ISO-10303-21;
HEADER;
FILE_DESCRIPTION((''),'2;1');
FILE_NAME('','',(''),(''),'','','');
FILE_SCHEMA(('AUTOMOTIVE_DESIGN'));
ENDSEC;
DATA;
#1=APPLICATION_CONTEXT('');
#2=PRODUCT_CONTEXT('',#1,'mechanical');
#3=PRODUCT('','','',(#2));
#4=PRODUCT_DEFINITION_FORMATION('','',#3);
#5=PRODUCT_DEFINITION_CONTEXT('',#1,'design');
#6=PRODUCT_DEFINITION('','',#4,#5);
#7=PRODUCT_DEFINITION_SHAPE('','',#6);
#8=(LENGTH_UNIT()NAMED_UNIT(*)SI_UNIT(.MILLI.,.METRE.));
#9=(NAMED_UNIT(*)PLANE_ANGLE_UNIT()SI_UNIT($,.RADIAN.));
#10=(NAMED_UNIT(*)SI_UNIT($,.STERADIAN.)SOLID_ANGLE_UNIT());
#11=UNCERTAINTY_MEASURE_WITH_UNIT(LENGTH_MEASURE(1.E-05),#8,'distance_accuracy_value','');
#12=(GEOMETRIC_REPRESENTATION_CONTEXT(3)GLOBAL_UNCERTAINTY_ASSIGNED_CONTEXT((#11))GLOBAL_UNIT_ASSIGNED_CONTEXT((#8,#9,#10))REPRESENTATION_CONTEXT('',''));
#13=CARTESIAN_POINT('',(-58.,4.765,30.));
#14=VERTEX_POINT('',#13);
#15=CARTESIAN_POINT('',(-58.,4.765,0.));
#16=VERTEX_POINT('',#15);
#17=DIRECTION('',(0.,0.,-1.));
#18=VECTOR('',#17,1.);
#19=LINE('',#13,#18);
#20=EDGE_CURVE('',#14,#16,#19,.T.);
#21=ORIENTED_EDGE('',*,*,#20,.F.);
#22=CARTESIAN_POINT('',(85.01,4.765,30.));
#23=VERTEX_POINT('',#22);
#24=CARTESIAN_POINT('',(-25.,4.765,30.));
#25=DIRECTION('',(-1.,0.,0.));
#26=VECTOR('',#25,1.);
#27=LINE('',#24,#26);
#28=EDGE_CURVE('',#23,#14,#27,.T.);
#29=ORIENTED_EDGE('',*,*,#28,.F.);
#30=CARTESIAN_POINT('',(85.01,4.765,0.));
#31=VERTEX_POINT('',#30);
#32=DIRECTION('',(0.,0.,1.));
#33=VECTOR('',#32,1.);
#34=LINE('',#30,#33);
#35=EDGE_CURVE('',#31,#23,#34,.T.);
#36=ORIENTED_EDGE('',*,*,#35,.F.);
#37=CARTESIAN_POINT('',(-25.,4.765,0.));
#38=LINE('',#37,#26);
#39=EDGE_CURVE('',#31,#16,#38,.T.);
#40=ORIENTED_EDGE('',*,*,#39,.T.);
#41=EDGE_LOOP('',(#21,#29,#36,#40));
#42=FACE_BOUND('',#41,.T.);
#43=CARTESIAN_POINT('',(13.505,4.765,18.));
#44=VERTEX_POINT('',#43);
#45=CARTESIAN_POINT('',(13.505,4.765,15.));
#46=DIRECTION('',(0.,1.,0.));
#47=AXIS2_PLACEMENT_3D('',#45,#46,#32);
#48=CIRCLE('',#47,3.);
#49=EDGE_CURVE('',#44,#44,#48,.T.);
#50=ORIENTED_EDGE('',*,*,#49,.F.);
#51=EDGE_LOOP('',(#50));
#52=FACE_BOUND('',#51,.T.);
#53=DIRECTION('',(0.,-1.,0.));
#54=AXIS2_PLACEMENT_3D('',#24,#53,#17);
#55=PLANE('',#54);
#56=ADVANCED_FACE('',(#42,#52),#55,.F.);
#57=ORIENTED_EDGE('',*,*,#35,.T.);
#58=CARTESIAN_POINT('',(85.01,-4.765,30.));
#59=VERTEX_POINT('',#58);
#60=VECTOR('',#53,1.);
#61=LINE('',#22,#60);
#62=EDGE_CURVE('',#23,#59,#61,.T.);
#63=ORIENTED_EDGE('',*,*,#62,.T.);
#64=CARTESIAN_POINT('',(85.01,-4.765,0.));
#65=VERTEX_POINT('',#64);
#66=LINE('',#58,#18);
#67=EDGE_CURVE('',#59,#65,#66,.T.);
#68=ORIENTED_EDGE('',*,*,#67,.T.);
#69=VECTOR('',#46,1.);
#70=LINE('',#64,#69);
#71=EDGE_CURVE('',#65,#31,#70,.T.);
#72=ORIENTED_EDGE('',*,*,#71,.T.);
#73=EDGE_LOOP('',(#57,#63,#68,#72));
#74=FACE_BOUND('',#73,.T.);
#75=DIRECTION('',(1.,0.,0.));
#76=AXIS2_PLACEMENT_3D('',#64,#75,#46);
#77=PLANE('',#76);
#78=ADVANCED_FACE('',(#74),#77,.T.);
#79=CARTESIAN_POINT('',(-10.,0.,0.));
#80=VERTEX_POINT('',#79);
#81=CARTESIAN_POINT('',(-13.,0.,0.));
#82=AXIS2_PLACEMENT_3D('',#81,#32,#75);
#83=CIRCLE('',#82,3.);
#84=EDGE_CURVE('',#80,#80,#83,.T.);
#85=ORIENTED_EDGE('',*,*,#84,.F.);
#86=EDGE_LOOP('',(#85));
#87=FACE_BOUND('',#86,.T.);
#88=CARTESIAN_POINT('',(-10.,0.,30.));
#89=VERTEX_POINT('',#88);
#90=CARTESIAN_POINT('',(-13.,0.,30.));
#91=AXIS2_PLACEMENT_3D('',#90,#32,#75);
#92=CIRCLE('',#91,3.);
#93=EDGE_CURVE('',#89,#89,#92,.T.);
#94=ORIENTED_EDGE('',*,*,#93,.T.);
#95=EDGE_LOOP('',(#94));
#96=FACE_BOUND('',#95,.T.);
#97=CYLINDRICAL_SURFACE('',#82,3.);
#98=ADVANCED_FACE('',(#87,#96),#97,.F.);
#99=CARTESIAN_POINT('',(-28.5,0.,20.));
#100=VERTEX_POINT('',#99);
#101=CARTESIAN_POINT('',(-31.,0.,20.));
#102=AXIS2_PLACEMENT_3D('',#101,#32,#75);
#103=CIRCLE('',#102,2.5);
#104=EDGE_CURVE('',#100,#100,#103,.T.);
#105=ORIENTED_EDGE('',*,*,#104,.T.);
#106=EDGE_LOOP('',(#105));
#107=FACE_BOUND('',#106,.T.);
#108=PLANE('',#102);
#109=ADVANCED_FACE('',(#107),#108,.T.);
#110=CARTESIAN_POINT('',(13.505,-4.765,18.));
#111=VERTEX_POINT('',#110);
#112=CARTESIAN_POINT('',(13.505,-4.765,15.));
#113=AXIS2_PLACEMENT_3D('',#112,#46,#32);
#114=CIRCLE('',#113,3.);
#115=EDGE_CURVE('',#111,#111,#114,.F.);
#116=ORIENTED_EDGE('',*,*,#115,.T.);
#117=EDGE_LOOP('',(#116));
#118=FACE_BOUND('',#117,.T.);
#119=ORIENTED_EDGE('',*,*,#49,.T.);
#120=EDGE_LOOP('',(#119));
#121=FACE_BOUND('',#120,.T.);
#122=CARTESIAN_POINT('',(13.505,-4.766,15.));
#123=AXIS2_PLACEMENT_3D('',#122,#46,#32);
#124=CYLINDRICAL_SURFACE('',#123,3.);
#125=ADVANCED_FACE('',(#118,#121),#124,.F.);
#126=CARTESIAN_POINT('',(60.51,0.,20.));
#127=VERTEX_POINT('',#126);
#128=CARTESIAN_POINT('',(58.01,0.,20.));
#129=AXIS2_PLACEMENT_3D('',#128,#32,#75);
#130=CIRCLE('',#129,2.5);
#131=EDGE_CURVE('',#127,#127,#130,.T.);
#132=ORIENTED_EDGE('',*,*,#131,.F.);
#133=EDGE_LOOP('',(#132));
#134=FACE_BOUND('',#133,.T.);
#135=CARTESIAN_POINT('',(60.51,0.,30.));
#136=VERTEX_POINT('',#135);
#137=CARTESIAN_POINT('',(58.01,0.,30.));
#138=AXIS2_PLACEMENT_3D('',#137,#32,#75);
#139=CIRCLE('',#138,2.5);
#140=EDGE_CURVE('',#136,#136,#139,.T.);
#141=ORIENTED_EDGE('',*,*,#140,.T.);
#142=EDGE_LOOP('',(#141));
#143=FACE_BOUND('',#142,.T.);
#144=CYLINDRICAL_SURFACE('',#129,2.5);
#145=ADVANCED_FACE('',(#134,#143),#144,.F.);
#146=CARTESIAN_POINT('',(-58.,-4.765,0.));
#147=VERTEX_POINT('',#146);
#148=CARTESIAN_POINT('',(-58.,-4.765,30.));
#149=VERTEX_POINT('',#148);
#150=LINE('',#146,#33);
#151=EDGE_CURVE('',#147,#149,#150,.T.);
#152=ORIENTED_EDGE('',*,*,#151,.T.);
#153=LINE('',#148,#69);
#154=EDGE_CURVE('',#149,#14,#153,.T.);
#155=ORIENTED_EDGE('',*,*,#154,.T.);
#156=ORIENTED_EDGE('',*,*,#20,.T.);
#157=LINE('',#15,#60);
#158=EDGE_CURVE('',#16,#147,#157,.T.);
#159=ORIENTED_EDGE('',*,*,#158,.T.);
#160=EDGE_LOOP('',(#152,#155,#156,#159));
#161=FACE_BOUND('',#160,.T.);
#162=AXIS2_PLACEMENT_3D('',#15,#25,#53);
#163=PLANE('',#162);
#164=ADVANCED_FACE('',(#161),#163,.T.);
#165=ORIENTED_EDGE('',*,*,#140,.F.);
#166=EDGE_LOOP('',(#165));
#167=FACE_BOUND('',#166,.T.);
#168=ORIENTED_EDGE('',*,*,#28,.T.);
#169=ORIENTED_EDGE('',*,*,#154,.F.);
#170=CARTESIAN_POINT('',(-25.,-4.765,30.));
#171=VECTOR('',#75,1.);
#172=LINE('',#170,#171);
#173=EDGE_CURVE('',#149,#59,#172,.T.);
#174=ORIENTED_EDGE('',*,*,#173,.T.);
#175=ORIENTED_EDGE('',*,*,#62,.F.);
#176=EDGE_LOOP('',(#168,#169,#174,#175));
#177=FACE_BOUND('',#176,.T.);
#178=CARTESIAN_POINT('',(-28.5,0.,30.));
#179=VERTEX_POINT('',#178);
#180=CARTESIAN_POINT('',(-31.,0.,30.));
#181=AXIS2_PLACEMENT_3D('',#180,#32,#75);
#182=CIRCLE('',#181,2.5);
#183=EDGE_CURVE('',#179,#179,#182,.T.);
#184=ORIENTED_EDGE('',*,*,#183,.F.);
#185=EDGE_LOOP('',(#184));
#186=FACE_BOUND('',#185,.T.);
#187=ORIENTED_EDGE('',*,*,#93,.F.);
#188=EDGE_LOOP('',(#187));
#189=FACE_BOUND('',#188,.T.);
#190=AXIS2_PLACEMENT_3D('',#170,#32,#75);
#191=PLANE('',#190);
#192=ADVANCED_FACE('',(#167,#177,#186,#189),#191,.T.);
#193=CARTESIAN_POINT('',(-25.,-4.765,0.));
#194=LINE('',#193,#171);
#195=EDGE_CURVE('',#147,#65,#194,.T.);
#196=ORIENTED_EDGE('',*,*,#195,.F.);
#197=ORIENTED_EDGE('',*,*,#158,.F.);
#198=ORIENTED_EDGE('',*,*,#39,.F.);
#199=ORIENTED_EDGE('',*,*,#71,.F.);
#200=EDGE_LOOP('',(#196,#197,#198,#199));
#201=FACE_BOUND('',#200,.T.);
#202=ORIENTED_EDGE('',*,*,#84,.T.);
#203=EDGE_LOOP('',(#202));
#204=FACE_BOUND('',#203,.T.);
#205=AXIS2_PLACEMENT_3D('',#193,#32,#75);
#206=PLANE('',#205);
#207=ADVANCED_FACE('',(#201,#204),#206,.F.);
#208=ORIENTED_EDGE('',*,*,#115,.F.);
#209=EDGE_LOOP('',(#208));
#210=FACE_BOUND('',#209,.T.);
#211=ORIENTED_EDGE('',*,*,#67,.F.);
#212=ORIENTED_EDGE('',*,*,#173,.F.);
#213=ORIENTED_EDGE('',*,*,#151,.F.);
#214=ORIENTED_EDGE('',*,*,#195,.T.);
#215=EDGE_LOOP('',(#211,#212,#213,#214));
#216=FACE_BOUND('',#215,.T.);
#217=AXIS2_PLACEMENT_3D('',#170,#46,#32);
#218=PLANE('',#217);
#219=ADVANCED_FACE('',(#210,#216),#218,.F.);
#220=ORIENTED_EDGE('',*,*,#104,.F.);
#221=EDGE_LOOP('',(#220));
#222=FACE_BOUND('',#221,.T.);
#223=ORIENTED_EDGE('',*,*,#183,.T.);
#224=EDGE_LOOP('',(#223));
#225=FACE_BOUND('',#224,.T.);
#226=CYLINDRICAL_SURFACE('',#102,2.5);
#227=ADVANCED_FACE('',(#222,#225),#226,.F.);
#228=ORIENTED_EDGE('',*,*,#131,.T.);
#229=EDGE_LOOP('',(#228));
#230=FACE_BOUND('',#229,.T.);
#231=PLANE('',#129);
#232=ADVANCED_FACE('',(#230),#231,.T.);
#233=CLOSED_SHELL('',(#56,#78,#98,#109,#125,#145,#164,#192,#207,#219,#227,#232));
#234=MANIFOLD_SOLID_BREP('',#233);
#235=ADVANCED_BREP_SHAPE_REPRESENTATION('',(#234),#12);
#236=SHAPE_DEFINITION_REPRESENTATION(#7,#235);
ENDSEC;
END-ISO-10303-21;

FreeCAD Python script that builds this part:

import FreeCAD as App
import Part
import Sketcher
Q = App.Units.Quantity


def add_polygon(sketch, points):
    """Adds a closed chain of lines whose ends are joined by coincident constraints."""
    first, n = sketch.GeometryCount, len(points)
    for a, b in zip(points, points[1:] + points[:1]):
        sketch.addGeometry(Part.LineSegment(App.Vector(*a, 0), App.Vector(*b, 0)), False)
    for i in range(n):
        sketch.addConstraint(Sketcher.Constraint("Coincident", first + i, 2, first + (i + 1) % n, 1))

doc = App.newDocument("Part")
body = doc.addObject("PartDesign::Body", "Body")

# Sketch on XY plane
sketch1 = body.newObject("Sketcher::SketchObject", "Sketch")
sketch1.AttachmentSupport = (doc.getObject("XY_Plane"), [""])
sketch1.MapMode = "FlatFace"
add_polygon(sketch1, [(-25, 5), (-25, -5), (25, -5), (25, 5)])  # lines 0-3
sketch1.addConstraint(Sketcher.Constraint("Vertical", 0))
sketch1.addConstraint(Sketcher.Constraint("Horizontal", 1))
sketch1.addConstraint(Sketcher.Constraint("Vertical", 2))
sketch1.addConstraint(Sketcher.Constraint("Horizontal", 3))
sketch1.addConstraint(Sketcher.Constraint("Symmetric", 0, 2, 2, 2, -1, 1))
sketch1.addConstraint(Sketcher.Constraint("DistanceX", 1, 1, 1, 2, Q("50 mm")))
sketch1.addConstraint(Sketcher.Constraint("DistanceY", 0, 2, 0, 1, Q("9.53 mm")))
pad1 = body.newObject("PartDesign::Pad", "Pad")
pad1.Profile = sketch1
pad1.Length = 30

# Sketch on XY plane
sketch2 = body.newObject("Sketcher::SketchObject", "Sketch001")
sketch2.AttachmentSupport = (doc.getObject("XY_Plane"), [""])
sketch2.MapMode = "FlatFace"
sketch2.AttachmentOffset = App.Placement(App.Vector(0, 0, 30), App.Rotation())
sketch2.addGeometry(Part.Circle(App.Vector(-13, 0, 0), App.Vector(0, 0, 1), 3), False)
sketch2.addConstraint(Sketcher.Constraint("PointOnObject", 0, 3, -1))
sketch2.addConstraint(Sketcher.Constraint("Diameter", 0, Q("6 mm")))
sketch2.addConstraint(Sketcher.Constraint("DistanceX", 0, 3, -1, 1, Q("13 mm")))
pocket1 = body.newObject("PartDesign::Pocket", "Pocket")
pocket1.Profile = sketch2
pocket1.Type = "ThroughAll"

# Sketch on YZ plane
sketch3 = body.newObject("Sketcher::SketchObject", "Sketch002")
sketch3.AttachmentSupport = (doc.getObject("YZ_Plane"), [""])
sketch3.MapMode = "FlatFace"
sketch3.AttachmentOffset = App.Placement(App.Vector(0, 0, 25), App.Rotation())
add_polygon(sketch3, [(5, 30), (-5, 30), (-5, 0), (5, 0)])  # lines 0-3
sketch3.addConstraint(Sketcher.Constraint("Horizontal", 0))
sketch3.addConstraint(Sketcher.Constraint("Vertical", 1))
sketch3.addConstraint(Sketcher.Constraint("Horizontal", 2))
sketch3.addConstraint(Sketcher.Constraint("Vertical", 3))
sketch3.addConstraint(Sketcher.Constraint("Symmetric", 1, 2, 2, 2, -1, 1))
sketch3.addConstraint(Sketcher.Constraint("DistanceY", 1, 2, 1, 1, Q("30 mm")))
sketch3.addConstraint(Sketcher.Constraint("DistanceX", 0, 2, 0, 1, Q("9.53 mm")))
pad2 = body.newObject("PartDesign::Pad", "Pad001")
pad2.Profile = sketch3
pad2.Length = 60.01

# Sketch on YZ plane
sketch4 = body.newObject("Sketcher::SketchObject", "Sketch003")
sketch4.AttachmentSupport = (doc.getObject("YZ_Plane"), [""])
sketch4.MapMode = "FlatFace"
sketch4.AttachmentOffset = App.Placement(App.Vector(0, 0, -25), App.Rotation())
add_polygon(sketch4, [(5, 0), (-5, 0), (-5, 30), (5, 30)])  # lines 0-3
sketch4.addConstraint(Sketcher.Constraint("Horizontal", 0))
sketch4.addConstraint(Sketcher.Constraint("Vertical", 1))
sketch4.addConstraint(Sketcher.Constraint("Horizontal", 2))
sketch4.addConstraint(Sketcher.Constraint("Vertical", 3))
sketch4.addConstraint(Sketcher.Constraint("Symmetric", 0, 2, 3, 2, -1, 1))
sketch4.addConstraint(Sketcher.Constraint("DistanceY", 1, 1, 1, 2, Q("30 mm")))
sketch4.addConstraint(Sketcher.Constraint("DistanceX", 0, 2, 0, 1, Q("9.53 mm")))
pad3 = body.newObject("PartDesign::Pad", "Pad002")
pad3.Profile = sketch4
pad3.Length = 33
pad3.Reversed = True

# Sketch on XY plane
sketch5 = body.newObject("Sketcher::SketchObject", "Sketch004")
sketch5.AttachmentSupport = (doc.getObject("XY_Plane"), [""])
sketch5.MapMode = "FlatFace"
sketch5.AttachmentOffset = App.Placement(App.Vector(0, 0, 30), App.Rotation())
sketch5.addGeometry(Part.Circle(App.Vector(-31, 0, 0), App.Vector(0, 0, 1), 2.5), False)
sketch5.addGeometry(Part.Circle(App.Vector(58, 0, 0), App.Vector(0, 0, 1), 2.5), False)
sketch5.addConstraint(Sketcher.Constraint("Equal", 0, 1))
sketch5.addConstraint(Sketcher.Constraint("PointOnObject", 0, 3, -1))
sketch5.addConstraint(Sketcher.Constraint("PointOnObject", 1, 3, -1))
sketch5.addConstraint(Sketcher.Constraint("Diameter", 0, Q("5 mm")))
sketch5.addConstraint(Sketcher.Constraint("DistanceX", 0, 3, -1, 1, Q("31 mm")))
sketch5.addConstraint(Sketcher.Constraint("DistanceX", -1, 1, 1, 3, Q("58.01 mm")))
pocket2 = body.newObject("PartDesign::Pocket", "Pocket001")
pocket2.Profile = sketch5
pocket2.Length = 10

# Sketch on XZ plane
sketch6 = body.newObject("Sketcher::SketchObject", "Sketch005")
sketch6.AttachmentSupport = (doc.getObject("XZ_Plane"), [""])
sketch6.MapMode = "FlatFace"
sketch6.AttachmentOffset = App.Placement(App.Vector(0, 0, -4.765), App.Rotation())
sketch6.addGeometry(Part.Circle(App.Vector(13.5, 15, 0), App.Vector(0, 0, 1), 3), False)
sketch6.addConstraint(Sketcher.Constraint("Diameter", 0, Q("6 mm")))
sketch6.addConstraint(Sketcher.Constraint("DistanceY", -1, 1, 0, 3, Q("15 mm")))
sketch6.addConstraint(Sketcher.Constraint("DistanceX", -1, 1, 0, 3, Q("13.505 mm")))
pocket3 = body.newObject("PartDesign::Pocket", "Pocket002")
pocket3.Profile = sketch6
pocket3.Type = "UpToFirst"
pocket3.Reversed = True

doc.recompute()
